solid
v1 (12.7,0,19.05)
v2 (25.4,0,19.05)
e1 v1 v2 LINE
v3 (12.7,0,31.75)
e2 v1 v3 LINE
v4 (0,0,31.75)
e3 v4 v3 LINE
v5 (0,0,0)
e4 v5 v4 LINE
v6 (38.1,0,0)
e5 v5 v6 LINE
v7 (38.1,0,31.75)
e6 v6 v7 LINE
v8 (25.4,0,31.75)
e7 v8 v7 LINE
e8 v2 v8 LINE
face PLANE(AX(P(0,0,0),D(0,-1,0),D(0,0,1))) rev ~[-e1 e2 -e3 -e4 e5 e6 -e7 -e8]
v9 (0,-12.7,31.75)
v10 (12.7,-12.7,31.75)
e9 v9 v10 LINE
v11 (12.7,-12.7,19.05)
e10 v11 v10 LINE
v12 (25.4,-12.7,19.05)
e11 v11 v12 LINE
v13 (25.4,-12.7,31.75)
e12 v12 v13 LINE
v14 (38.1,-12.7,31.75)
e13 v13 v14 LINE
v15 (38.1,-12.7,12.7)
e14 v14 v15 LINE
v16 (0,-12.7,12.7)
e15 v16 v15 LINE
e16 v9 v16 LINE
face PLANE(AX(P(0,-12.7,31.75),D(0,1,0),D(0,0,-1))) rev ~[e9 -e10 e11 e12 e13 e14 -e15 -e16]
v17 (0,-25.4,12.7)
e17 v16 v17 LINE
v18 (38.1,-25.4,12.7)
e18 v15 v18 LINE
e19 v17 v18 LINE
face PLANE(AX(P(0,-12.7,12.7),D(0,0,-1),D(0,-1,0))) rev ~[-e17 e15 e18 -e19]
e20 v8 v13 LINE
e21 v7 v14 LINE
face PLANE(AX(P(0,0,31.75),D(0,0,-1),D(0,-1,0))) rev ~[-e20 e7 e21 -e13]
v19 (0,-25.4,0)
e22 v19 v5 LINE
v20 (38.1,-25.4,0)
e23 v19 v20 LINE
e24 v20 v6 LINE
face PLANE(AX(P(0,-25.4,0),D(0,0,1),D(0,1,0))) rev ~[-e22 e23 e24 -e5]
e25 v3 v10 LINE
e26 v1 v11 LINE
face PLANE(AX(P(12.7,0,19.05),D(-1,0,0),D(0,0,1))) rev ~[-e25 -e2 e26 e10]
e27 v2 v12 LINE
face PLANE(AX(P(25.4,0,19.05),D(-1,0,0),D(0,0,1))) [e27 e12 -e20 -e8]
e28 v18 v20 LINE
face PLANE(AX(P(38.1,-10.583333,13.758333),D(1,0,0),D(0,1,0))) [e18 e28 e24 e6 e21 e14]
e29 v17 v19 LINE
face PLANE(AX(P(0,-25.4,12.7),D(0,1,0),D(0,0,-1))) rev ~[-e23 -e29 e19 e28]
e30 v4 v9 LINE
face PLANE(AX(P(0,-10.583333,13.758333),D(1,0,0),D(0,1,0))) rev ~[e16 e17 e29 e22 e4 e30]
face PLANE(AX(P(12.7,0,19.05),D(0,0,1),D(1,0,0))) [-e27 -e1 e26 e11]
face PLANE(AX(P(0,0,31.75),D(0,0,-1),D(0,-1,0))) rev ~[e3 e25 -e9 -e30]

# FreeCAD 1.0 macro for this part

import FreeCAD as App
import Part
import Sketcher

V = App.Vector
Q = App.Units.Quantity


def add_polygon(sketch, points):
    """Adds a closed chain of lines whose ends are joined by coincident constraints."""
    first, n = sketch.GeometryCount, len(points)
    for a, b in zip(points, points[1:] + points[:1]):
        sketch.addGeometry(Part.LineSegment(App.Vector(*a, 0), App.Vector(*b, 0)), False)
    for i in range(n):
        sketch.addConstraint(Sketcher.Constraint("Coincident", first + i, 2, first + (i + 1) % n, 1))

doc = App.newDocument("Part")
params = doc.addObject("Spreadsheet::Sheet", "Params")
for row, (alias, value) in enumerate([
    ("sketch1_width", "1 in"),
    ("sketch1_height", "1.25 in"),
    ("pad1_length", "1.5 in"),
    ("sketch2_width", "0.5 in"),
    ("pocket1_length", "9 in"),
], start=1):
    params.set(f"A{row}", alias)
    params.set(f"B{row}", "=" + value)
    params.setAlias(f"B{row}", alias)

body = doc.addObject("PartDesign::Body", "Body")

sketch1 = body.newObject("Sketcher::SketchObject", "Sketch")
sketch1.AttachmentSupport = (doc.getObject("YZ_Plane"), [""])
sketch1.MapMode = "FlatFace"
add_polygon(sketch1, [(-25.4, 0), (0, 0), (0, 31.75), (-12.7, 31.75), (-12.7, 12.7), (-25.4, 12.7)])
sketch1.addConstraint([
    Sketcher.Constraint("Horizontal", 0),
    Sketcher.Constraint("Vertical", 1),
    Sketcher.Constraint("Horizontal", 2),
    Sketcher.Constraint("Vertical", 3),
    Sketcher.Constraint("Horizontal", 4),
    Sketcher.Constraint("Vertical", 5),
    Sketcher.Constraint("Coincident", 0, 2, -1, 1),
    Sketcher.Constraint("Equal", 2, 4),
    Sketcher.Constraint("Equal", 4, 5),
    Sketcher.Constraint("DistanceX", 0, 1, 0, 2, Q("1 in")),
    Sketcher.Constraint("DistanceY", 1, 1, 1, 2, Q("1.25 in")),
])
sketch1.setExpression("Constraints[15]", "Params.sketch1_width")
sketch1.setExpression("Constraints[16]", "Params.sketch1_height")
pad1 = body.newObject("PartDesign::Pad", "Pad")
pad1.Profile = sketch1
pad1.setExpression("Length", "Params.pad1_length")

sketch2 = body.newObject("Sketcher::SketchObject", "Sketch001")
sketch2.AttachmentSupport = (doc.getObject("XZ_Plane"), [""])
sketch2.MapMode = "FlatFace"
add_polygon(sketch2, [(12.7, 31.75), (12.7, 19.05), (25.4, 19.05), (25.4, 31.75)])
sketch2.addConstraint([
    Sketcher.Constraint("Vertical", 0),
    Sketcher.Constraint("Horizontal", 1),
    Sketcher.Constraint("Vertical", 2),
    Sketcher.Constraint("Horizontal", 3),
    Sketcher.Constraint("Equal", 3, 0),
    Sketcher.Constraint("DistanceX", 1, 1, 1, 2, Q("0.5 in")),
    Sketcher.Constraint("DistanceX", -1, 1, 1, 2, Q("1 in")),
    Sketcher.Constraint("DistanceY", -1, 1, 0, 2, Q("0.75 in")),
])
sketch2.setExpression("Constraints[9]", "Params.sketch2_width")
pocket1 = body.newObject("PartDesign::Pocket", "Pocket")
pocket1.Profile = sketch2
pocket1.setExpression("Length", "Params.pocket1_length")
pocket1.Reversed = True

doc.recompute()
